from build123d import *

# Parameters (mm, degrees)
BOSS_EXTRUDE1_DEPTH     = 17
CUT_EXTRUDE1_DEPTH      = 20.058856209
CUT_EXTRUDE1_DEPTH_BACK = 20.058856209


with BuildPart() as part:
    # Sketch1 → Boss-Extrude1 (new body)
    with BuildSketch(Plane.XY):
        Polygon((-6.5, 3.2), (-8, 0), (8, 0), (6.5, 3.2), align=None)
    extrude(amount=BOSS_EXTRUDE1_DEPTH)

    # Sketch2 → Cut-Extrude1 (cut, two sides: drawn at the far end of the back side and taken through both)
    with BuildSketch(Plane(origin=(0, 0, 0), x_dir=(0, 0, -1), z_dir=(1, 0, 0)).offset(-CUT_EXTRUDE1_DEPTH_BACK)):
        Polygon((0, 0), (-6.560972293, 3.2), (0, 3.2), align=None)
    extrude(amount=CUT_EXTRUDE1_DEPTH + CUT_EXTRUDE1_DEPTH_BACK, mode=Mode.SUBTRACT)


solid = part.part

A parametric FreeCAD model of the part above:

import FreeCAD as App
import Part
import Sketcher
from FreeCAD import Vector
Q = App.Units.Quantity

doc = App.newDocument("Part")
body = doc.addObject("PartDesign::Body", "Body")

# Sketch on XY plane
sketch1 = body.newObject("Sketcher::SketchObject", "Sketch")
sketch1.AttachmentSupport = (doc.getObject("XY_Plane"), [""])
sketch1.MapMode = "FlatFace"
sketch1.addGeometry([
    Part.LineSegment(Vector(-6.5, 3.2, 0), Vector(-8, 0, 0)),
    Part.LineSegment(Vector(-8, 0, 0), Vector(8, 0, 0)),
    Part.LineSegment(Vector(8, 0, 0), Vector(6.5, 3.2, 0)),
    Part.LineSegment(Vector(6.5, 3.2, 0), Vector(-6.5, 3.2, 0)),
], False)
sketch1.addConstraint([
    Sketcher.Constraint("Coincident", 0, 2, 1, 1),
    Sketcher.Constraint("Coincident", 1, 2, 2, 1),
    Sketcher.Constraint("Coincident", 2, 2, 3, 1),
    Sketcher.Constraint("Coincident", 3, 2, 0, 1),
    Sketcher.Constraint("Horizontal", 1),
    Sketcher.Constraint("Horizontal", 3),
    Sketcher.Constraint("Symmetric", 0, 2, 1, 2, -1, 1),
    Sketcher.Constraint("Equal", 0, 2),
    Sketcher.Constraint("DistanceX", 1, 1, 1, 2, 16.0),
    Sketcher.Constraint("DistanceX", 3, 2, 3, 1, 13.0),
    Sketcher.Constraint("DistanceY", -1, 1, 2, 2, 3.2),
])
pad1 = body.newObject("PartDesign::Pad", "Pad")
pad1.Profile = sketch1
pad1.Length = 17

# Sketch on YZ plane
sketch2 = body.newObject("Sketcher::SketchObject", "Sketch001")
sketch2.AttachmentSupport = (doc.getObject("YZ_Plane"), [""])
sketch2.MapMode = "FlatFace"
sketch2.addGeometry([
    Part.LineSegment(Vector(3.2, 6.6, 0), Vector(0, 0, 0)),
    Part.LineSegment(Vector(0, 0, 0), Vector(3.2, 0, 0)),
    Part.LineSegment(Vector(3.2, 0, 0), Vector(3.2, 6.6, 0)),
], False)
sketch2.addConstraint([
    Sketcher.Constraint("Coincident", 0, 2, 1, 1),
    Sketcher.Constraint("Coincident", 1, 2, 2, 1),
    Sketcher.Constraint("Coincident", 2, 2, 0, 1),
    Sketcher.Constraint("Horizontal", 1),
    Sketcher.Constraint("Vertical", 2),
    Sketcher.Constraint("Coincident", 0, 2, -1, 1),
    Sketcher.Constraint("Angle", 0, Q("-116 deg")),
    Sketcher.Constraint("DistanceX", 1, 1, 1, 2, 3.2),
])
pocket1 = body.newObject("PartDesign::Pocket", "Pocket")
pocket1.Profile = sketch2
pocket1.Type = "ThroughAll"
pocket1.Midplane = True

doc.recompute()
